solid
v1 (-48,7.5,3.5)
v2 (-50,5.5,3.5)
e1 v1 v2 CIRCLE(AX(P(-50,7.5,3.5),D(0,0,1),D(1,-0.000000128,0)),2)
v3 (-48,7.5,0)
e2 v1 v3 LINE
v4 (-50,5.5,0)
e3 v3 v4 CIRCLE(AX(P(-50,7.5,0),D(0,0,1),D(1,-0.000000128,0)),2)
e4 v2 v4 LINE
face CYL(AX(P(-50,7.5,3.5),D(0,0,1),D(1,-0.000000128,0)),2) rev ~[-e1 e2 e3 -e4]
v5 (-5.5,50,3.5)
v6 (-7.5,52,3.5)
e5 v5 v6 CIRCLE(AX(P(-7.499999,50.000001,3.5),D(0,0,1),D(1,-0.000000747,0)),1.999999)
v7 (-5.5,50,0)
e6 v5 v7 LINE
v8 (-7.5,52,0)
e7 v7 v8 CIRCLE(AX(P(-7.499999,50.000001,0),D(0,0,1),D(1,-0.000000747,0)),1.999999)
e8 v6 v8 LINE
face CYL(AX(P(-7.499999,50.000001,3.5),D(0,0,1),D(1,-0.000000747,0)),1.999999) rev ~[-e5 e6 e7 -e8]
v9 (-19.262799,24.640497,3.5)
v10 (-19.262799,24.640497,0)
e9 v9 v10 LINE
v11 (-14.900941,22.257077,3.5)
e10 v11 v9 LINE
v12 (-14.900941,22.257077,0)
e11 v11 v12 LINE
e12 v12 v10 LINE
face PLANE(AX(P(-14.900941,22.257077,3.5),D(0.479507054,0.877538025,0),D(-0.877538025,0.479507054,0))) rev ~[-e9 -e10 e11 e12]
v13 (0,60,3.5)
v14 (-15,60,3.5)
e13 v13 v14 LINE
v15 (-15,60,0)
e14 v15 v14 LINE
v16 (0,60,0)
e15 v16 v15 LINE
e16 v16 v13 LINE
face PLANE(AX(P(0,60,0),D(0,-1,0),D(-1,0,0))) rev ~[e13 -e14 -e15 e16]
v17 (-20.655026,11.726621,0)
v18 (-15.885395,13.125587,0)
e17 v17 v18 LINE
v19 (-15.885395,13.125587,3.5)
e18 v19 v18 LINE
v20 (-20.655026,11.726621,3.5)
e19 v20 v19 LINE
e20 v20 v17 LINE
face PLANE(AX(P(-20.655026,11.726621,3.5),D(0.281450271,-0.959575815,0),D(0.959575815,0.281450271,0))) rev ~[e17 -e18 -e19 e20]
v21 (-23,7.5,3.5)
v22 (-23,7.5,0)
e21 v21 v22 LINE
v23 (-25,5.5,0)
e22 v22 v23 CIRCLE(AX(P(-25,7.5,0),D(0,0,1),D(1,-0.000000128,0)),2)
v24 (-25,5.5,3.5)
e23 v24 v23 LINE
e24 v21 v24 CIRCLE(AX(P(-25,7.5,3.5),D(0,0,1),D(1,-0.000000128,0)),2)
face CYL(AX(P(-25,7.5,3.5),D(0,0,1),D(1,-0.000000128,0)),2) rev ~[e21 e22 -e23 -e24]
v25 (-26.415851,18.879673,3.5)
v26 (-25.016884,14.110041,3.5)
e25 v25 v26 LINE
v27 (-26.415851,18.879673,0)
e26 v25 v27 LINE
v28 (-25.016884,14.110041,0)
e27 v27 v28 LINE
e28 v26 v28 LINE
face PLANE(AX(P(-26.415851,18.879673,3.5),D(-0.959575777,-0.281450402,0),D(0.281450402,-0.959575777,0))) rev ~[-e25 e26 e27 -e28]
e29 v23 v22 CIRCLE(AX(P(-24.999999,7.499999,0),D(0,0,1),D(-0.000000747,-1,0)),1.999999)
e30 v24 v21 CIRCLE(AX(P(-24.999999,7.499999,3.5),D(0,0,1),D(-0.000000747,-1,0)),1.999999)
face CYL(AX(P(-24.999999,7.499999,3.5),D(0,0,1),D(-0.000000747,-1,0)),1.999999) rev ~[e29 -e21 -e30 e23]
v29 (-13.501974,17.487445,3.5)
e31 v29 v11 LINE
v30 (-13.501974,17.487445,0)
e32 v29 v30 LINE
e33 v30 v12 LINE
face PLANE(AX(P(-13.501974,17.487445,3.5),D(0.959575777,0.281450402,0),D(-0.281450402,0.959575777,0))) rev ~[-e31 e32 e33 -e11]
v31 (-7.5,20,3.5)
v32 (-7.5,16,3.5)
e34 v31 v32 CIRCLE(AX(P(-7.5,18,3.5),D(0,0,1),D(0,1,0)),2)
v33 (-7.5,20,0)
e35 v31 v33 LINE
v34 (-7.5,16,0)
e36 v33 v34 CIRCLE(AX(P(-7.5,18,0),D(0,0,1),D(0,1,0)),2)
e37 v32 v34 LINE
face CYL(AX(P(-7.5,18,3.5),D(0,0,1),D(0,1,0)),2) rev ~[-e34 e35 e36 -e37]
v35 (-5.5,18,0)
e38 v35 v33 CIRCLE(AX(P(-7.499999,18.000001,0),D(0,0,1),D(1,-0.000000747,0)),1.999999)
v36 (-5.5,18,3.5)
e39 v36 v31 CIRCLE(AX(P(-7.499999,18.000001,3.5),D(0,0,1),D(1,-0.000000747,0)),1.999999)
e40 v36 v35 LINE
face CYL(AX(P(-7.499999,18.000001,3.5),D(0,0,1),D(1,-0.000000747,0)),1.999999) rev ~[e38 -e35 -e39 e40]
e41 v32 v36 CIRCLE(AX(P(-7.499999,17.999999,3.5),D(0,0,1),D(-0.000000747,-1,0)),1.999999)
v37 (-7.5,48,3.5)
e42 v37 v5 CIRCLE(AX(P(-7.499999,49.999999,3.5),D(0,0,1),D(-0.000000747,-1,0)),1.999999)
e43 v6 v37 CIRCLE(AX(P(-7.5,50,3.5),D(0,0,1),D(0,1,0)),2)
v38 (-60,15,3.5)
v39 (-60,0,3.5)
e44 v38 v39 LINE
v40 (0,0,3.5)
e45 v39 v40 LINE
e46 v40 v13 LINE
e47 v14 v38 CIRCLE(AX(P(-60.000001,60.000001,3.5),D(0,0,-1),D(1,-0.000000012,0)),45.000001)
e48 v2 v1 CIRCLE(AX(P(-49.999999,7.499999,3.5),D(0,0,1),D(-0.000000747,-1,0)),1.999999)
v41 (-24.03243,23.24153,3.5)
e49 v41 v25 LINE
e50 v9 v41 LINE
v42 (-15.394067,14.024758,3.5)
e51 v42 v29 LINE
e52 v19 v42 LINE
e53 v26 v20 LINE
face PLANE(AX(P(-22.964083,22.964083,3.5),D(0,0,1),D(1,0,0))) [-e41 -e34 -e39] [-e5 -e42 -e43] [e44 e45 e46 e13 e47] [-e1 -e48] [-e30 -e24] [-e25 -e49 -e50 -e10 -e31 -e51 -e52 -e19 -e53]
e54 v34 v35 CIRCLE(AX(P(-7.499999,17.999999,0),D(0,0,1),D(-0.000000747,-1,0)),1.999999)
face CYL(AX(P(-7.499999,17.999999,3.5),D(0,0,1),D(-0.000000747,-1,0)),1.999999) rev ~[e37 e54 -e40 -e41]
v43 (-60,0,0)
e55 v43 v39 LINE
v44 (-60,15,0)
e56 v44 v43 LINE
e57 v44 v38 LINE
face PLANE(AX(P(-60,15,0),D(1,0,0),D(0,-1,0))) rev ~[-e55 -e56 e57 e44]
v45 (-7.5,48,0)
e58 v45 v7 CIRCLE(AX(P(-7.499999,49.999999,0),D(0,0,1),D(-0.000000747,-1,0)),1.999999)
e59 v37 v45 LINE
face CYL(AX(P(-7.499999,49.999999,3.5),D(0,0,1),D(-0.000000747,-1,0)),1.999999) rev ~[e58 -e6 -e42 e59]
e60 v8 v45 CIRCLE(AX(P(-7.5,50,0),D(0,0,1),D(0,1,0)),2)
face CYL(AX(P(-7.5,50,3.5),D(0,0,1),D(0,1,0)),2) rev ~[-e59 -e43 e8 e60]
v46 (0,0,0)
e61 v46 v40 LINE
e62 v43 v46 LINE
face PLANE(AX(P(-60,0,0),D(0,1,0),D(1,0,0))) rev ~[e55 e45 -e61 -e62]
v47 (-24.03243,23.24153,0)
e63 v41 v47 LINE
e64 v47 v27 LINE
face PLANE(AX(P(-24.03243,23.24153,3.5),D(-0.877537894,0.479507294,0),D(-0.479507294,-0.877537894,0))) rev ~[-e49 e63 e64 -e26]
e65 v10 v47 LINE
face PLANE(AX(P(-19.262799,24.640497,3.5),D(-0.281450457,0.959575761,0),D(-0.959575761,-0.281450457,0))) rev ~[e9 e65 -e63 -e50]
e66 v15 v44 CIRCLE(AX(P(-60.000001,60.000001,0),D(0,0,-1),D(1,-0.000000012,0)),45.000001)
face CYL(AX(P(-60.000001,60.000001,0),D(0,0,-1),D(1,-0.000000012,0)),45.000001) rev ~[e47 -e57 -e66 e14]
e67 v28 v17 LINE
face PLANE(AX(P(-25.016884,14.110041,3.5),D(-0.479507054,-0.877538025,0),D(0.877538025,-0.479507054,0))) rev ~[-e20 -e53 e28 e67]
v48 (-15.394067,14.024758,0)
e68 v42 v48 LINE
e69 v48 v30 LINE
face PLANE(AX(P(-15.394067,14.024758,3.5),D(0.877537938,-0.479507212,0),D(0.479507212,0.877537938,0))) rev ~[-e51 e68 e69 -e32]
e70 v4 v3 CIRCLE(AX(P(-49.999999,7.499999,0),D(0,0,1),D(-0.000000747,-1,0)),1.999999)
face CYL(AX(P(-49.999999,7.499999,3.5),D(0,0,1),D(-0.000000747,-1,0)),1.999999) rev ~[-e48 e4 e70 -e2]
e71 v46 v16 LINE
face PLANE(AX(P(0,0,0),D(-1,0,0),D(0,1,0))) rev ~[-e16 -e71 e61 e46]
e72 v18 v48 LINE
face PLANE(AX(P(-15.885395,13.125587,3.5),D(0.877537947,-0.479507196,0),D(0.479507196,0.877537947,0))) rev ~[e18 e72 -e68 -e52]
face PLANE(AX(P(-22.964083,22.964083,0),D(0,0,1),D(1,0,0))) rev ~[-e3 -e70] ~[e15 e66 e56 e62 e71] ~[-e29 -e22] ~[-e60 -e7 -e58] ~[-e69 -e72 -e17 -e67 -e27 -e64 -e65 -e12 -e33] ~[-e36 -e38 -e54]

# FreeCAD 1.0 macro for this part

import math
import FreeCAD as App
import Part
import Sketcher
from FreeCAD import Vector
Q = App.Units.Quantity

doc = App.newDocument("Part")
body = doc.addObject("PartDesign::Body", "Body")

sketch1 = body.newObject("Sketcher::SketchObject", "Sketch")
sketch1.AttachmentSupport = (doc.getObject("XY_Plane"), [""])
sketch1.MapMode = "FlatFace"
sketch1.addGeometry(Part.LineSegment(Vector(0, 0, 0), Vector(0, 60, 0)), False)
sketch1.addGeometry(Part.LineSegment(Vector(0, 60, 0), Vector(-15, 60, 0)), False)
sketch1.addGeometry(Part.ArcOfCircle(Part.Circle(Vector(-60, 60, 0), Vector(0, 0, 1), 45), math.radians(-90), math.radians(0)), False)
sketch1.addGeometry(Part.LineSegment(Vector(-60, 15, 0), Vector(-60, 0, 0)), False)
sketch1.addGeometry(Part.LineSegment(Vector(-60, 0, 0), Vector(0, 0, 0)), False)
sketch1.addConstraint(Sketcher.Constraint("Coincident", 0, 2, 1, 1))
sketch1.addConstraint(Sketcher.Constraint("Coincident", 1, 2, 2, 2))
sketch1.addConstraint(Sketcher.Constraint("Coincident", 2, 1, 3, 1))
sketch1.addConstraint(Sketcher.Constraint("Coincident", 3, 2, 4, 1))
sketch1.addConstraint(Sketcher.Constraint("Coincident", 4, 2, 0, 1))
sketch1.addConstraint(Sketcher.Constraint("Vertical", 0))
sketch1.addConstraint(Sketcher.Constraint("Horizontal", 1))
sketch1.addConstraint(Sketcher.Constraint("Vertical", 3))
sketch1.addConstraint(Sketcher.Constraint("Horizontal", 4))
sketch1.addConstraint(Sketcher.Constraint("Coincident", 4, 2, -1, 1))
sketch1.addConstraint(Sketcher.Constraint("Horizontal", 2, 3, 0, 2))
sketch1.addConstraint(Sketcher.Constraint("Equal", 4, 0))
sketch1.addConstraint(Sketcher.Constraint("Equal", 1, 3))
sketch1.addConstraint(Sketcher.Constraint("Radius", 2, Q("45.000001 mm")))
sketch1.addConstraint(Sketcher.Constraint("DistanceX", 1, 2, 1, 1, Q("15 mm")))
pad1 = body.newObject("PartDesign::Pad", "Pad")
pad1.Profile = sketch1
pad1.Length = 3.5

sketch2 = body.newObject("Sketcher::SketchObject", "Sketch001")
sketch2.AttachmentSupport = (doc.getObject("XY_Plane"), [""])
sketch2.MapMode = "FlatFace"
sketch2.AttachmentOffset = App.Placement(Vector(0, 0, 3.5), App.Rotation())
sketch2.addGeometry(Part.LineSegment(Vector(-15.9, 13.1, 0), Vector(-15.4, 14, 0)), False)
sketch2.addGeometry(Part.LineSegment(Vector(-15.4, 14, 0), Vector(-13.5, 17.5, 0)), False)
sketch2.addGeometry(Part.LineSegment(Vector(-13.5, 17.5, 0), Vector(-14.9, 22.3, 0)), False)
sketch2.addGeometry(Part.LineSegment(Vector(-14.9, 22.3, 0), Vector(-19.3, 24.6, 0)), False)
sketch2.addGeometry(Part.LineSegment(Vector(-19.3, 24.6, 0), Vector(-24, 23.2, 0)), False)
sketch2.addGeometry(Part.LineSegment(Vector(-24, 23.2, 0), Vector(-26.4, 18.9, 0)), False)
sketch2.addGeometry(Part.LineSegment(Vector(-26.4, 18.9, 0), Vector(-25, 14.1, 0)), False)
sketch2.addGeometry(Part.LineSegment(Vector(-25, 14.1, 0), Vector(-20.7, 11.7, 0)), False)
sketch2.addGeometry(Part.LineSegment(Vector(-20.7, 11.7, 0), Vector(-15.9, 13.1, 0)), False)
sketch2.addGeometry(Part.ArcOfCircle(Part.Circle(Vector(-25, 7.5, 0), Vector(0, 0, 1), 2), math.radians(0), math.radians(270)), False)
sketch2.addGeometry(Part.ArcOfCircle(Part.Circle(Vector(-25, 7.5, 0), Vector(0, 0, 1), 2), math.radians(-90), math.radians(0)), False)
sketch2.addGeometry(Part.ArcOfCircle(Part.Circle(Vector(-50, 7.5, 0), Vector(0, 0, 1), 2), math.radians(-90), math.radians(0)), False)
sketch2.addGeometry(Part.ArcOfCircle(Part.Circle(Vector(-50, 7.5, 0), Vector(0, 0, 1), 2), math.radians(0), math.radians(270)), False)
sketch2.addGeometry(Part.ArcOfCircle(Part.Circle(Vector(-7.5, 18, 0), Vector(0, 0, 1), 2), math.radians(-90), math.radians(0)), False)
sketch2.addGeometry(Part.ArcOfCircle(Part.Circle(Vector(-7.5, 18, 0), Vector(0, 0, 1), 2), math.radians(0), math.radians(90)), False)
sketch2.addGeometry(Part.ArcOfCircle(Part.Circle(Vector(-7.5, 18, 0), Vector(0, 0, 1), 2), math.radians(90), math.radians(270)), False)
sketch2.addGeometry(Part.ArcOfCircle(Part.Circle(Vector(-7.5, 50, 0), Vector(0, 0, 1), 2), math.radians(0), math.radians(90)), False)
sketch2.addGeometry(Part.ArcOfCircle(Part.Circle(Vector(-7.5, 50, 0), Vector(0, 0, 1), 2), math.radians(90), math.radians(270)), False)
sketch2.addGeometry(Part.ArcOfCircle(Part.Circle(Vector(-7.5, 50, 0), Vector(0, 0, 1), 2), math.radians(-90), math.radians(0)), False)
sketch2.addConstraint(Sketcher.Constraint("Coincident", 0, 2, 1, 1))
sketch2.addConstraint(Sketcher.Constraint("Coincident", 1, 2, 2, 1))
sketch2.addConstraint(Sketcher.Constraint("Coincident", 2, 2, 3, 1))
sketch2.addConstraint(Sketcher.Constraint("Coincident", 3, 2, 4, 1))
sketch2.addConstraint(Sketcher.Constraint("Coincident", 4, 2, 5, 1))
sketch2.addConstraint(Sketcher.Constraint("Coincident", 5, 2, 6, 1))
sketch2.addConstraint(Sketcher.Constraint("Coincident", 6, 2, 7, 1))
sketch2.addConstraint(Sketcher.Constraint("Coincident", 7, 2, 8, 1))
sketch2.addConstraint(Sketcher.Constraint("Coincident", 8, 2, 0, 1))
sketch2.addConstraint(Sketcher.Constraint("Tangent", 9, 1, 10, 2))
sketch2.addConstraint(Sketcher.Constraint("Coincident", 10, 1, 9, 2))
sketch2.addConstraint(Sketcher.Constraint("Tangent", 11, 1, 12, 2))
sketch2.addConstraint(Sketcher.Constraint("Coincident", 12, 1, 11, 2))
sketch2.addConstraint(Sketcher.Constraint("Tangent", 13, 2, 14, 1))
sketch2.addConstraint(Sketcher.Constraint("Tangent", 14, 2, 15, 1))
sketch2.addConstraint(Sketcher.Constraint("Tangent", 15, 2, 13, 1))
sketch2.addConstraint(Sketcher.Constraint("Tangent", 16, 2, 17, 1))
sketch2.addConstraint(Sketcher.Constraint("Tangent", 17, 2, 18, 1))
sketch2.addConstraint(Sketcher.Constraint("Tangent", 18, 2, 16, 1))
sketch2.addConstraint(Sketcher.Constraint("Equal", 10, 11))
sketch2.addConstraint(Sketcher.Constraint("Equal", 12, 13))
sketch2.addConstraint(Sketcher.Constraint("Equal", 15, 16))
sketch2.addConstraint(Sketcher.Constraint("Parallel", 0, 1))
sketch2.addConstraint(Sketcher.Constraint("Perpendicular", 1, 3))
sketch2.addConstraint(Sketcher.Constraint("Perpendicular", 2, 4))
sketch2.addConstraint(Sketcher.Constraint("Perpendicular", 3, 5))
sketch2.addConstraint(Sketcher.Constraint("Perpendicular", 4, 6))
sketch2.addConstraint(Sketcher.Constraint("Perpendicular", 5, 7))
sketch2.addConstraint(Sketcher.Constraint("Perpendicular", 6, 8))
sketch2.addConstraint(Sketcher.Constraint("Horizontal", 10, 3, 11, 3))
sketch2.addConstraint(Sketcher.Constraint("Horizontal", 12, 3, 9, 1))
sketch2.addConstraint(Sketcher.Constraint("Horizontal", 9, 1, 12, 1))
sketch2.addConstraint(Sketcher.Constraint("Horizontal", 15, 3, 13, 2))
sketch2.addConstraint(Sketcher.Constraint("Horizontal", 17, 3, 18, 2))
sketch2.addConstraint(Sketcher.Constraint("Vertical", 15, 3, 16, 3))
sketch2.addConstraint(Sketcher.Constraint("Vertical", 9, 3, 10, 1))
sketch2.addConstraint(Sketcher.Constraint("Vertical", 12, 3, 11, 1))
sketch2.addConstraint(Sketcher.Constraint("Vertical", 18, 3, 14, 2))
sketch2.addConstraint(Sketcher.Constraint("Vertical", 14, 2, 15, 2))
sketch2.addConstraint(Sketcher.Constraint("Vertical", 15, 2, 16, 2))
sketch2.addConstraint(Sketcher.Constraint("Vertical", 16, 2, 17, 2))
sketch2.addConstraint(Sketcher.Constraint("Equal", 2, 3))
sketch2.addConstraint(Sketcher.Constraint("Equal", 3, 4))
sketch2.addConstraint(Sketcher.Constraint("Equal", 4, 5))
sketch2.addConstraint(Sketcher.Constraint("Equal", 5, 6))
sketch2.addConstraint(Sketcher.Constraint("Equal", 6, 7))
sketch2.addConstraint(Sketcher.Constraint("Radius", 9, Q("2 mm")))
sketch2.addConstraint(Sketcher.Constraint("DistanceX", 9, 3, -1, 1, Q("25 mm")))
sketch2.addConstraint(Sketcher.Constraint("DistanceX", 11, 3, -1, 1, Q("49.999999 mm")))
sketch2.addConstraint(Sketcher.Constraint("DistanceY", -1, 1, 13, 3, Q("17.999999 mm")))
sketch2.addConstraint(Sketcher.Constraint("DistanceY", -1, 1, 16, 3, Q("50.000001 mm")))
sketch2.addConstraint(Sketcher.Constraint("DistanceY", -1, 1, 9, 3, Q("7.5 mm")))
sketch2.addConstraint(Sketcher.Constraint("DistanceX", 13, 3, -1, 1, Q("7.499999 mm")))
sketch2.addConstraint(Sketcher.Constraint("DistanceX", 3, 2, -1, 1, Q("19.262799 mm")))
sketch2.addConstraint(Sketcher.Constraint("Distance", 0, Q("1.024652 mm")))
sketch2.addConstraint(Sketcher.Constraint("Distance", 1, Q("3.945911 mm")))
sketch2.addConstraint(Sketcher.Constraint("DistanceX", 2, 2, -1, 1, Q("14.900941 mm")))
sketch2.addConstraint(Sketcher.Constraint("DistanceX", 4, 2, -1, 1, Q("24.03243 mm")))
sketch2.addConstraint(Sketcher.Constraint("DistanceY", -1, 1, 4, 2, Q("23.24153 mm")))
pocket1 = body.newObject("PartDesign::Pocket", "Pocket")
pocket1.Profile = sketch2
pocket1.Length = 25

doc.recompute()
